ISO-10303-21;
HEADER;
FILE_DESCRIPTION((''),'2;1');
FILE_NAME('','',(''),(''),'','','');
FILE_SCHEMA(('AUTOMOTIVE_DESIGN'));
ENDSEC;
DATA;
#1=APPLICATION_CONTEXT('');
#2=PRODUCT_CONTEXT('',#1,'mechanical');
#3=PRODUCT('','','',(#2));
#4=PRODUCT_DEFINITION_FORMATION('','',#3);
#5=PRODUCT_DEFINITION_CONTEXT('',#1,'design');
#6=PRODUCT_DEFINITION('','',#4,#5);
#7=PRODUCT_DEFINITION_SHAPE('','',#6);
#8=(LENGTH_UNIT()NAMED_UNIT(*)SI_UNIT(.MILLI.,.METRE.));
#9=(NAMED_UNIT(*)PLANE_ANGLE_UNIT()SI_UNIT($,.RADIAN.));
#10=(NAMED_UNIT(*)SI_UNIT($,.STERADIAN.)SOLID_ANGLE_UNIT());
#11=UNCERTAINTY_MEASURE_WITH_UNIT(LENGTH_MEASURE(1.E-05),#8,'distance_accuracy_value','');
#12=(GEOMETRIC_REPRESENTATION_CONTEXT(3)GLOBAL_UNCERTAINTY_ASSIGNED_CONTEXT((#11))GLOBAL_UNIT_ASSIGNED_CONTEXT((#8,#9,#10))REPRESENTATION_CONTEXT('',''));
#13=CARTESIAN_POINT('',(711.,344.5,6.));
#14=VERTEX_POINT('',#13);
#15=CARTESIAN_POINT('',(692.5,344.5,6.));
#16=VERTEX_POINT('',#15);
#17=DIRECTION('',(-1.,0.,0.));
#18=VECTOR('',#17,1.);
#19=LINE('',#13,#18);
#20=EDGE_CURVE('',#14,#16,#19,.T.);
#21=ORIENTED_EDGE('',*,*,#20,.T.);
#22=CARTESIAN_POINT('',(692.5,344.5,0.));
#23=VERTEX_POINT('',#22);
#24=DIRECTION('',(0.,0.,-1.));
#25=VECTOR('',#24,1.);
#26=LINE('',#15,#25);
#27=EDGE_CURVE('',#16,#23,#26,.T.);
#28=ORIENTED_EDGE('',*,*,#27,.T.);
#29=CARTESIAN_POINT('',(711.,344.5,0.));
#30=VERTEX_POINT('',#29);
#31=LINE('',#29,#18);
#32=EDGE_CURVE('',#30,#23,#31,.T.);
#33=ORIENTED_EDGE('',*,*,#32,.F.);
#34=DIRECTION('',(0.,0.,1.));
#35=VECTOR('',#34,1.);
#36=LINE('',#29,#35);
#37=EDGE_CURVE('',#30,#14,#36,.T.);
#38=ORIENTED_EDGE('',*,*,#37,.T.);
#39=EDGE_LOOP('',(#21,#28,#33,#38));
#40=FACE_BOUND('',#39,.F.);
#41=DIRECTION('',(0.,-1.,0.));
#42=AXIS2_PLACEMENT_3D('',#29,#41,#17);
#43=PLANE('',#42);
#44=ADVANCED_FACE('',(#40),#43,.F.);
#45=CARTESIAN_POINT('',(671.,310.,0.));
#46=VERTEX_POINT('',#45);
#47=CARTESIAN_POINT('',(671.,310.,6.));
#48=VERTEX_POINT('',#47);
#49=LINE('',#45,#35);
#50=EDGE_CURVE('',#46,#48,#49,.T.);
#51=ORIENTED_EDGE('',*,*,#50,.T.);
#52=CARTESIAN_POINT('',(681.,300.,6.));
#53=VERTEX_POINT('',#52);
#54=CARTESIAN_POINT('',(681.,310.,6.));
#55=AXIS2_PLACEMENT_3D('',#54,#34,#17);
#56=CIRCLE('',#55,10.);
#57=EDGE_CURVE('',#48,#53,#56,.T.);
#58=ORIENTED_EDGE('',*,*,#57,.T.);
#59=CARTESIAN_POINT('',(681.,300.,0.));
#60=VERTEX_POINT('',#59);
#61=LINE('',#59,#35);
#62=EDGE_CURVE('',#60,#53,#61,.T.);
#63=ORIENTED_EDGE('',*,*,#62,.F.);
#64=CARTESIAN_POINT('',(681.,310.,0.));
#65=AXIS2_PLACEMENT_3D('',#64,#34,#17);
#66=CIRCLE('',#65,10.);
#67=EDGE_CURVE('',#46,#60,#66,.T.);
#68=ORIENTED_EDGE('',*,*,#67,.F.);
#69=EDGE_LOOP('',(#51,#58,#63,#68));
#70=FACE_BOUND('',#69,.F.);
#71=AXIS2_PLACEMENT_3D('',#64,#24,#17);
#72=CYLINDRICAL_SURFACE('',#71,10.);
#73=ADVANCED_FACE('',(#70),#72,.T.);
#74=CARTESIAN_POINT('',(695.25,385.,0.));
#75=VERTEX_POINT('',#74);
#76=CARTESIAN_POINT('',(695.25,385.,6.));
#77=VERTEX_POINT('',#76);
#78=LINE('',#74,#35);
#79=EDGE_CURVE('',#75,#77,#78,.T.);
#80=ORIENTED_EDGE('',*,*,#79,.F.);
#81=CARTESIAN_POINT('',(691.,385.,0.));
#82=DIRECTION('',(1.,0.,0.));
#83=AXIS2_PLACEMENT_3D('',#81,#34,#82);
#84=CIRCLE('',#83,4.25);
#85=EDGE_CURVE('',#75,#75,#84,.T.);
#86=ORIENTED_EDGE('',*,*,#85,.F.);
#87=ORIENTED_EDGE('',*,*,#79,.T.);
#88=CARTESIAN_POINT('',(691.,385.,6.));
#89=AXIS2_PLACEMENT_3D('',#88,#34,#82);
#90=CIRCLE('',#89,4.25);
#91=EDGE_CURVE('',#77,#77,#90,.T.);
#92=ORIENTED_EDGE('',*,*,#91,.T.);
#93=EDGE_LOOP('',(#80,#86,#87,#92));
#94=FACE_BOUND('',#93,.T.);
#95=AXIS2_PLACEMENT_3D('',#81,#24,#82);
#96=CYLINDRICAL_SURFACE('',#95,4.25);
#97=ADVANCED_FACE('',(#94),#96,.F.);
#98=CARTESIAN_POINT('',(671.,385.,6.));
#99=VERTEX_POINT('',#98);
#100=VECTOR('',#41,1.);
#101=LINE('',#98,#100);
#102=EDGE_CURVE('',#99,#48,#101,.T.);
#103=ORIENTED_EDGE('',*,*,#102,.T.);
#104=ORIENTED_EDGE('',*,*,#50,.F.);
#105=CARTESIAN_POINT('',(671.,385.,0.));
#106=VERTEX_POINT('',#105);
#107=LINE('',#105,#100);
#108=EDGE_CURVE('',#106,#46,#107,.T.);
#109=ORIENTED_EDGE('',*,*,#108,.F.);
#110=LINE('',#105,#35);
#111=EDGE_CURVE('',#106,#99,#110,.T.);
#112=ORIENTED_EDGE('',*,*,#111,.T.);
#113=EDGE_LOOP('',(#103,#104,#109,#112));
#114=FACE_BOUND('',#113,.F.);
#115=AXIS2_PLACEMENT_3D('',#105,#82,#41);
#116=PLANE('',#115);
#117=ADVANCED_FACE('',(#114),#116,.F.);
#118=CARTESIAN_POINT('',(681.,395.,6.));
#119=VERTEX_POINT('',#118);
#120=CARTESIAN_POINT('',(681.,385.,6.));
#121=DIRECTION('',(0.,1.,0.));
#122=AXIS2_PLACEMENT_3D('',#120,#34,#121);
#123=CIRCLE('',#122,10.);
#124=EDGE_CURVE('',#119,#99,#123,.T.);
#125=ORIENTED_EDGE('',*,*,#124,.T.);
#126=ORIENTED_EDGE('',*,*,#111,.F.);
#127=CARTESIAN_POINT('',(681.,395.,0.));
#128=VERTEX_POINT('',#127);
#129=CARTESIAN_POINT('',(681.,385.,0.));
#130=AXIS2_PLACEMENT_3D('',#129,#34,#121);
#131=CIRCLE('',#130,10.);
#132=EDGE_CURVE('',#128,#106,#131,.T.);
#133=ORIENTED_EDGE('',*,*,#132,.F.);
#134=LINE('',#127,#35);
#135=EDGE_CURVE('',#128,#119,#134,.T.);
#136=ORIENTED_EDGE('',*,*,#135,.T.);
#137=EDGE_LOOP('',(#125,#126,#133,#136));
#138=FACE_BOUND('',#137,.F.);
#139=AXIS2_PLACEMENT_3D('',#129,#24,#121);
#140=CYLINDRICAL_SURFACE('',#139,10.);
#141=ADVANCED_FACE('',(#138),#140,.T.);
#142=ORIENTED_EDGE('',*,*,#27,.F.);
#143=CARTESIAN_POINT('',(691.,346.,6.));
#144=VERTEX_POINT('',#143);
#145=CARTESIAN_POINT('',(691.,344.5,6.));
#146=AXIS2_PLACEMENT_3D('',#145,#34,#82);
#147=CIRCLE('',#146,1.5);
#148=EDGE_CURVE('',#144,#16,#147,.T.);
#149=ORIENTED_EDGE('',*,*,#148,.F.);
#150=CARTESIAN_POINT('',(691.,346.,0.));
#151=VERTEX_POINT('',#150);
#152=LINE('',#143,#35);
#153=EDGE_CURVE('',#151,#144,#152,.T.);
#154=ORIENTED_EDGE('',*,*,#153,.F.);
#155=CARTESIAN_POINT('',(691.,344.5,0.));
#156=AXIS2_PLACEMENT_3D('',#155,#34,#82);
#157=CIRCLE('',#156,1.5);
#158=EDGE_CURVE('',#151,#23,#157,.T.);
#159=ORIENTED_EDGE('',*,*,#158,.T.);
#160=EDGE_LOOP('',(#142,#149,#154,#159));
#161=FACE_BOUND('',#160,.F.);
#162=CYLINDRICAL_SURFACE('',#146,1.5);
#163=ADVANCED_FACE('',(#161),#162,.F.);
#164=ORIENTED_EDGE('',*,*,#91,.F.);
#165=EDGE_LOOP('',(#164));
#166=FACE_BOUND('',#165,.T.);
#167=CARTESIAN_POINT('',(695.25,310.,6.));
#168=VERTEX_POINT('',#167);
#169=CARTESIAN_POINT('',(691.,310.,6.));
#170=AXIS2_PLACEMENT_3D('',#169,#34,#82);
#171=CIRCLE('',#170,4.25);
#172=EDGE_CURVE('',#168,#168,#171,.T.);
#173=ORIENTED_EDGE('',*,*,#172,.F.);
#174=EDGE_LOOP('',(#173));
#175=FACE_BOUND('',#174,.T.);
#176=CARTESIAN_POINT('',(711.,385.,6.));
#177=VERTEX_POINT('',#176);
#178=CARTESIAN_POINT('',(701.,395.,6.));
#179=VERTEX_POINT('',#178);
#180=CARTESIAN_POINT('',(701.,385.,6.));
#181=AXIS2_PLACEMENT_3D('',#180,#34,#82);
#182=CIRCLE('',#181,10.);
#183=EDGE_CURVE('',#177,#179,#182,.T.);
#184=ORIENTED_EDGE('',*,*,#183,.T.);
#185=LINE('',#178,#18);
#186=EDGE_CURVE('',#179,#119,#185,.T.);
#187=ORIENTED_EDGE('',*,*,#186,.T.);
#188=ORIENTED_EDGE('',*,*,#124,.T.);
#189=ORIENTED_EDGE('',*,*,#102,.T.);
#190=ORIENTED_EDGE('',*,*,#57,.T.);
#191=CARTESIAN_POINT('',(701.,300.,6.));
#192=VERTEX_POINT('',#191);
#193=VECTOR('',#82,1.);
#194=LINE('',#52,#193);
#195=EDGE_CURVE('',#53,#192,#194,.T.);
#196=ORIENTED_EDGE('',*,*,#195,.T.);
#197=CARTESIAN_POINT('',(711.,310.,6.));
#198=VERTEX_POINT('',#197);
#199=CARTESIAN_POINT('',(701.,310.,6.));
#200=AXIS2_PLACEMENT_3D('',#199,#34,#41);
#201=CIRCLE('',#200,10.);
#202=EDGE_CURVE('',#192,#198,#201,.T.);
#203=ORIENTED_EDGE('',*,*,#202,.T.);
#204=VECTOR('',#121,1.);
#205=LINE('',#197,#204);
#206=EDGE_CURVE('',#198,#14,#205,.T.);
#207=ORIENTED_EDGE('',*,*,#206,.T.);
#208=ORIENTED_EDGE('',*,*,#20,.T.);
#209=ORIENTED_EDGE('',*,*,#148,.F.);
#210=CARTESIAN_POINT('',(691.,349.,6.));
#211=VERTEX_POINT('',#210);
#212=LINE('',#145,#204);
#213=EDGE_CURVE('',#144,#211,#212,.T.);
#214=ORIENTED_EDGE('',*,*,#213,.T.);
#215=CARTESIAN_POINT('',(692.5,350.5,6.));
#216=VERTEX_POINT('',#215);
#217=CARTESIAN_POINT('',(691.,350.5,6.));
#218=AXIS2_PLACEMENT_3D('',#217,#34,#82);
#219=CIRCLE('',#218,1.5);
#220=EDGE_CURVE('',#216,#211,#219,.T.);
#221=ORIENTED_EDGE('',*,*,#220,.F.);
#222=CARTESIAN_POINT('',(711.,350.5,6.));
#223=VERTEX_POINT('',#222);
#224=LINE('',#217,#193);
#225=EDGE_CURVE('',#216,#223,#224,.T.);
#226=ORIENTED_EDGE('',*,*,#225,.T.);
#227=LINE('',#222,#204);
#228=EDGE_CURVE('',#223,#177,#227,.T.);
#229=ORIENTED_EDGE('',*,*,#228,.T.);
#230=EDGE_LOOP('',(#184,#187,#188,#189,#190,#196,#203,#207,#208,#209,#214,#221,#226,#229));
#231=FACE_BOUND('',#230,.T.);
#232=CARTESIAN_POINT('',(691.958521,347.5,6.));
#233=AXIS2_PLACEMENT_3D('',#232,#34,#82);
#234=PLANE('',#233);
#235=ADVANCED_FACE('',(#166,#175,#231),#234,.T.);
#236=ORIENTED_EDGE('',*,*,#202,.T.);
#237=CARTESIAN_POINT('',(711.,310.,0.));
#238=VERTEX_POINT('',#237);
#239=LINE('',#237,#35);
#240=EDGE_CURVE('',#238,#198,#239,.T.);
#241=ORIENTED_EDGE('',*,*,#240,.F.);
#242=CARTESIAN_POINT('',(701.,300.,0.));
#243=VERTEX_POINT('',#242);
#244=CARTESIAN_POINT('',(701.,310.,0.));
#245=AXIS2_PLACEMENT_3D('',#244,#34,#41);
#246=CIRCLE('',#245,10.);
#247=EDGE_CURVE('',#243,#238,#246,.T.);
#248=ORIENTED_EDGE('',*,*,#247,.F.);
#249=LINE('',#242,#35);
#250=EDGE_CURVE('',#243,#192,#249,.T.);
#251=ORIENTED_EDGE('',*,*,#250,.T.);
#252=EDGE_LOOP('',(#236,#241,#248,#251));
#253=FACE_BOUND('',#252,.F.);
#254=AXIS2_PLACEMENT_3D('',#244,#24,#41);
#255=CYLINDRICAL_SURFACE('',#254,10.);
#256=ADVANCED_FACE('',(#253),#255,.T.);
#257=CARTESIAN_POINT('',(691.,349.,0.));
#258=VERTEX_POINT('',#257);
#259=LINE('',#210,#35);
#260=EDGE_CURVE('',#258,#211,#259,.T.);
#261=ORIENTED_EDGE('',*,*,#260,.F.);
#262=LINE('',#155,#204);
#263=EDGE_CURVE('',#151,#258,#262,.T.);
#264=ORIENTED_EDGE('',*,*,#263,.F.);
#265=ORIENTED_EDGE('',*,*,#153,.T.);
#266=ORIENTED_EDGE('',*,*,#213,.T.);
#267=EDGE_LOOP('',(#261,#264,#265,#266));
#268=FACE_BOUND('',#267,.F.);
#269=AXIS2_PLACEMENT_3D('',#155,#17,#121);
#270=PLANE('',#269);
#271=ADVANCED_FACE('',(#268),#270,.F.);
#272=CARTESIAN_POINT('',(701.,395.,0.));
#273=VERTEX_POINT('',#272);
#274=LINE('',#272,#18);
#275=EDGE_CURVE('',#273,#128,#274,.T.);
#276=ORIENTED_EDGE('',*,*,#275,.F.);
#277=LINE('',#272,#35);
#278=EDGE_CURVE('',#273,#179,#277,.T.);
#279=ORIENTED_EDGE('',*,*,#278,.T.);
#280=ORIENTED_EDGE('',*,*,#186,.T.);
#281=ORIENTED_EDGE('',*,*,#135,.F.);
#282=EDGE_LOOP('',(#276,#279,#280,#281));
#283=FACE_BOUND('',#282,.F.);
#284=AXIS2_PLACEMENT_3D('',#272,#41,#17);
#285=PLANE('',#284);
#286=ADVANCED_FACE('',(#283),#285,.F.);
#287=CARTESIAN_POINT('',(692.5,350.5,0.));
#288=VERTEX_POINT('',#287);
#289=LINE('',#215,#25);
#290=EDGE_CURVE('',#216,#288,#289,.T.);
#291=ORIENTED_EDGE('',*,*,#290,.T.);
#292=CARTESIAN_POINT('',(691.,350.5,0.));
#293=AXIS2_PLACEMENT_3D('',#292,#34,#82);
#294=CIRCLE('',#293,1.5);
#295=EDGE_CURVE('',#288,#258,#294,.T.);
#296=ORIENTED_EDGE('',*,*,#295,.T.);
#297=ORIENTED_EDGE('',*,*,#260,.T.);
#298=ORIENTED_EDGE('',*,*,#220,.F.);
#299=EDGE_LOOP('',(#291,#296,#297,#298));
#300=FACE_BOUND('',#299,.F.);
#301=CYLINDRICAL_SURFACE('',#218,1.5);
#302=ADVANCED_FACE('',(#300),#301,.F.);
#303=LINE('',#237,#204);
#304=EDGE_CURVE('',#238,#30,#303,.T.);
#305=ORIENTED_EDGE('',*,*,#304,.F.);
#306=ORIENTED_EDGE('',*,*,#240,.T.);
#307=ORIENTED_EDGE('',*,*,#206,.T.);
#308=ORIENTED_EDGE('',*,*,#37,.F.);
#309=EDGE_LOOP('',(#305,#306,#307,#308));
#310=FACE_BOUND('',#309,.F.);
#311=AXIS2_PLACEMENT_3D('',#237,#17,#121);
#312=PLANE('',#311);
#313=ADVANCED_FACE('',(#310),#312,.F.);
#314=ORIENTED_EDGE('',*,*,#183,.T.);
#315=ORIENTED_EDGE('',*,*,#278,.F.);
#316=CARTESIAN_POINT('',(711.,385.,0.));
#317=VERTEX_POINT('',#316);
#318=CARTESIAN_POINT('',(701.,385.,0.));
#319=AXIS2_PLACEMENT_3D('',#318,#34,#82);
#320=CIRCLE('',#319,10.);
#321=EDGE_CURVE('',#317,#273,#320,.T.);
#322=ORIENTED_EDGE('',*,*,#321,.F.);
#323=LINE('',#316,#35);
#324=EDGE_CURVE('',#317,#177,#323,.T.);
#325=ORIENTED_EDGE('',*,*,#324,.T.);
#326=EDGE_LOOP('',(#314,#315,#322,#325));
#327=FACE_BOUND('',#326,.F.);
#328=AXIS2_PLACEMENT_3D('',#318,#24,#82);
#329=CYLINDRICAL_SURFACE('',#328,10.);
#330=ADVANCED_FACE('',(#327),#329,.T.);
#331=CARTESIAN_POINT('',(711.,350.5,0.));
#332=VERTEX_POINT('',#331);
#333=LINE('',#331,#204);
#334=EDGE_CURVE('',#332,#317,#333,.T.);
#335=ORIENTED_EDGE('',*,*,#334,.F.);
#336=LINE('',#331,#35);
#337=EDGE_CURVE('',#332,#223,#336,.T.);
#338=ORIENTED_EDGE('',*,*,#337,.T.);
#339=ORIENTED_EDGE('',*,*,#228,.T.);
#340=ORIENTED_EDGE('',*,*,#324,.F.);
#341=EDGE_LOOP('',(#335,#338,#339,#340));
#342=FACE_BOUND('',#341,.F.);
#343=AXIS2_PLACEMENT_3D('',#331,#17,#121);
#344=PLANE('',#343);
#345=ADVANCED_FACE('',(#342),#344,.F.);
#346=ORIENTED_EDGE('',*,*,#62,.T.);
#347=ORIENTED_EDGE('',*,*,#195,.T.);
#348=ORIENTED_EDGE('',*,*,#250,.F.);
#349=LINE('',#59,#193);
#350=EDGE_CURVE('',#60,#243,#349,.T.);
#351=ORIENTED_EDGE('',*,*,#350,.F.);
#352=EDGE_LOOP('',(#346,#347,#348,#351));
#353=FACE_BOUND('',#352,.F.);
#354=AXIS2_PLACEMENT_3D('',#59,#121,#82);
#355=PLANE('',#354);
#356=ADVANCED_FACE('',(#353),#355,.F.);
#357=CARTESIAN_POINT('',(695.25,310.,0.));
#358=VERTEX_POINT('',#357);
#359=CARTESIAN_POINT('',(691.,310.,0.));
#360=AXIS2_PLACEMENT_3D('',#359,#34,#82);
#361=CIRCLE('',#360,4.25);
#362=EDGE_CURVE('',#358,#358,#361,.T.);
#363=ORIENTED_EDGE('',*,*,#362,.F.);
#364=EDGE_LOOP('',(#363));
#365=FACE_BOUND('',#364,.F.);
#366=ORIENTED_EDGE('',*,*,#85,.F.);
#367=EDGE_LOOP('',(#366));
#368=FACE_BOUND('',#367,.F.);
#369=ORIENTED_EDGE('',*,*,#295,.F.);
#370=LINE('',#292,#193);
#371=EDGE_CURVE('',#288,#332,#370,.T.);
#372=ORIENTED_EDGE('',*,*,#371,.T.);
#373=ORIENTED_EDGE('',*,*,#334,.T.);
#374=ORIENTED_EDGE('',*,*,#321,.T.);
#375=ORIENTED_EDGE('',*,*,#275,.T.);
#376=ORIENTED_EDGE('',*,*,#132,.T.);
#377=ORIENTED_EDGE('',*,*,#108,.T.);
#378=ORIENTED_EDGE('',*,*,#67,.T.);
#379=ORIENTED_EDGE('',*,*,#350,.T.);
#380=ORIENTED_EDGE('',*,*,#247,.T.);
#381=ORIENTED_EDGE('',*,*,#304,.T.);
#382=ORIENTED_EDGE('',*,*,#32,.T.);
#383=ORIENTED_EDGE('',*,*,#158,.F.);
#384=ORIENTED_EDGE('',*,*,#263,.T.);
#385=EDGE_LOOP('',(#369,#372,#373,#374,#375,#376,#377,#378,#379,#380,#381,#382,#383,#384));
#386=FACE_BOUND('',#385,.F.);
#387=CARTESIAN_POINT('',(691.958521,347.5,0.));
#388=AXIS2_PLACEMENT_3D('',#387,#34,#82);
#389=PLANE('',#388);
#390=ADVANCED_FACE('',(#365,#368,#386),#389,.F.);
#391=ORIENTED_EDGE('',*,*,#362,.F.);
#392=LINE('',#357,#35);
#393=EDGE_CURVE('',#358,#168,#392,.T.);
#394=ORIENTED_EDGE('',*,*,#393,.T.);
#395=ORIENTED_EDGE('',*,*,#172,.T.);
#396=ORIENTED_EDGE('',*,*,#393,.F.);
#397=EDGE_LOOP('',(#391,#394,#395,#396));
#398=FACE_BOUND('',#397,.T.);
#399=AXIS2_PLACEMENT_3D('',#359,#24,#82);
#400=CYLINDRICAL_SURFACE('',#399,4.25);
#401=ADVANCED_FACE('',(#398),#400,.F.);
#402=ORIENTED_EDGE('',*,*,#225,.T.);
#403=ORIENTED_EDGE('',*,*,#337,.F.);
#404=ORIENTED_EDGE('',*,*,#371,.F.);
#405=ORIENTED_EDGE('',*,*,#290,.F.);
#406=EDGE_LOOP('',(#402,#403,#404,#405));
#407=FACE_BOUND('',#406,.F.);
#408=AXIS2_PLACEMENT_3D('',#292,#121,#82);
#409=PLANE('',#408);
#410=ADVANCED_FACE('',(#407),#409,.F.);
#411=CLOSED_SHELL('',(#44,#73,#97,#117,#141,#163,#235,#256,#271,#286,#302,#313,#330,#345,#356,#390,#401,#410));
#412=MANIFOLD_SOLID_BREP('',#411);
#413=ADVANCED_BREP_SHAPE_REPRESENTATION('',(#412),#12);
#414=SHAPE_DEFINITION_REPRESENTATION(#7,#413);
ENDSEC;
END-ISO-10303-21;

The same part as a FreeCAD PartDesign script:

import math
import FreeCAD as App
import Part
import Sketcher
Q = App.Units.Quantity

doc = App.newDocument("Part")
body = doc.addObject("PartDesign::Body", "Body")

# Sketch on XY plane
sketch1 = doc.addObject("Sketcher::SketchObject", "Sketch")
body.addObject(sketch1)
sketch1.AttachmentSupport = (doc.XY_Plane, [""])
sketch1.MapMode = "FlatFace"
sketch1.addGeometry([
    Part.LineSegment(App.Vector(711, 350.5, 0), App.Vector(711, 385, 0)),  # 0
    Part.ArcOfCircle(Part.Circle(App.Vector(701, 385, 0), App.Vector(0, 0, 1), 10), math.radians(0), math.radians(90)),  # 1
    Part.LineSegment(App.Vector(701, 395, 0), App.Vector(681, 395, 0)),  # 2
    Part.ArcOfCircle(Part.Circle(App.Vector(681, 385, 0), App.Vector(0, 0, 1), 10), math.radians(90), math.radians(180)),  # 3
    Part.LineSegment(App.Vector(671, 385, 0), App.Vector(671, 310, 0)),  # 4
    Part.ArcOfCircle(Part.Circle(App.Vector(681, 310, 0), App.Vector(0, 0, 1), 10), math.radians(180), math.radians(270)),  # 5
    Part.LineSegment(App.Vector(681, 300, 0), App.Vector(701, 300, 0)),  # 6
    Part.ArcOfCircle(Part.Circle(App.Vector(701, 310, 0), App.Vector(0, 0, 1), 10), math.radians(-90), math.radians(0)),  # 7
    Part.LineSegment(App.Vector(711, 310, 0), App.Vector(711, 344.5, 0)),  # 8
    Part.LineSegment(App.Vector(711, 344.5, 0), App.Vector(691, 344.5, 0)),  # 9
    Part.LineSegment(App.Vector(691, 344.5, 0), App.Vector(691, 350.5, 0)),  # 10
    Part.LineSegment(App.Vector(691, 350.5, 0), App.Vector(711, 350.5, 0)),  # 11
    Part.Circle(App.Vector(691, 310, 0), App.Vector(0, 0, 1), 4.2),  # 12
    Part.Circle(App.Vector(691, 385, 0), App.Vector(0, 0, 1), 4.2),  # 13
], False)
sketch1.addConstraint([
    Sketcher.Constraint("Tangent", 0, 2, 1, 1),
    Sketcher.Constraint("Tangent", 1, 2, 2, 1),
    Sketcher.Constraint("Tangent", 2, 2, 3, 1),
    Sketcher.Constraint("Tangent", 3, 2, 4, 1),
    Sketcher.Constraint("Tangent", 4, 2, 5, 1),
    Sketcher.Constraint("Tangent", 5, 2, 6, 1),
    Sketcher.Constraint("Tangent", 6, 2, 7, 1),
    Sketcher.Constraint("Tangent", 7, 2, 8, 1),
    Sketcher.Constraint("Coincident", 8, 2, 9, 1),
    Sketcher.Constraint("Coincident", 9, 2, 10, 1),
    Sketcher.Constraint("Coincident", 10, 2, 11, 1),
    Sketcher.Constraint("Coincident", 11, 2, 0, 1),
    Sketcher.Constraint("Vertical", 0),
    Sketcher.Constraint("Horizontal", 2),
    Sketcher.Constraint("Vertical", 4),
    Sketcher.Constraint("Horizontal", 6),
    Sketcher.Constraint("Vertical", 8),
    Sketcher.Constraint("Horizontal", 9),
    Sketcher.Constraint("Vertical", 10),
    Sketcher.Constraint("Horizontal", 11),
    Sketcher.Constraint("Equal", 1, 3),
    Sketcher.Constraint("Equal", 3, 5),
    Sketcher.Constraint("Equal", 5, 7),
    Sketcher.Constraint("Equal", 12, 13),
    Sketcher.Constraint("Horizontal", 7, 3, 12, 3),
    Sketcher.Constraint("Horizontal", 3, 3, 13, 3),
    Sketcher.Constraint("Vertical", 1, 3, 7, 3),
    Sketcher.Constraint("Vertical", 12, 3, 13, 3),
    Sketcher.Constraint("Vertical", 13, 3, 9, 2),
    Sketcher.Constraint("Equal", 6, 9),
    Sketcher.Constraint("Equal", 0, 8),
    Sketcher.Constraint("Radius", 1, Q("10 mm")),
    Sketcher.Constraint("Diameter", 12, Q("8.5 mm")),
    Sketcher.Constraint("DistanceX", 2, 2, 2, 1, Q("20 mm")),
    Sketcher.Constraint("DistanceY", 4, 2, 4, 1, Q("75 mm")),
    Sketcher.Constraint("DistanceY", 10, 1, 10, 2, Q("6 mm")),
    Sketcher.Constraint("DistanceX", -1, 1, 1, 3, Q("701 mm")),
    Sketcher.Constraint("DistanceY", -1, 1, 1, 3, Q("385 mm")),
])
pad1 = doc.addObject("PartDesign::Pad", "Pad")
body.addObject(pad1)
pad1.Profile = sketch1
pad1.Length = 6

# Sketch on XY plane
sketch2 = doc.addObject("Sketcher::SketchObject", "Sketch001")
body.addObject(sketch2)
sketch2.AttachmentSupport = (doc.XY_Plane, [""])
sketch2.MapMode = "FlatFace"
sketch2.AttachmentOffset = App.Placement(App.Vector(0, 0, 6), App.Rotation())
sketch2.addGeometry([
    Part.Circle(App.Vector(691, 350.5, 0), App.Vector(0, 0, 1), 1.5),
    Part.Circle(App.Vector(691, 344.5, 0), App.Vector(0, 0, 1), 1.5),
], False)
sketch2.addConstraint([
    Sketcher.Constraint("Equal", 0, 1),
    Sketcher.Constraint("Vertical", 0, 3, 1, 3),
    Sketcher.Constraint("Diameter", 0, Q("3 mm")),
    Sketcher.Constraint("DistanceX", -1, 1, 0, 3, Q("691 mm")),
    Sketcher.Constraint("DistanceY", 1, 3, 0, 3, Q("6 mm")),
    Sketcher.Constraint("DistanceY", -1, 1, 0, 3, Q("350.5 mm")),
])
pocket1 = doc.addObject("PartDesign::Pocket", "Pocket")
body.addObject(pocket1)
pocket1.Profile = sketch2
pocket1.Type = "ThroughAll"

doc.recompute()
